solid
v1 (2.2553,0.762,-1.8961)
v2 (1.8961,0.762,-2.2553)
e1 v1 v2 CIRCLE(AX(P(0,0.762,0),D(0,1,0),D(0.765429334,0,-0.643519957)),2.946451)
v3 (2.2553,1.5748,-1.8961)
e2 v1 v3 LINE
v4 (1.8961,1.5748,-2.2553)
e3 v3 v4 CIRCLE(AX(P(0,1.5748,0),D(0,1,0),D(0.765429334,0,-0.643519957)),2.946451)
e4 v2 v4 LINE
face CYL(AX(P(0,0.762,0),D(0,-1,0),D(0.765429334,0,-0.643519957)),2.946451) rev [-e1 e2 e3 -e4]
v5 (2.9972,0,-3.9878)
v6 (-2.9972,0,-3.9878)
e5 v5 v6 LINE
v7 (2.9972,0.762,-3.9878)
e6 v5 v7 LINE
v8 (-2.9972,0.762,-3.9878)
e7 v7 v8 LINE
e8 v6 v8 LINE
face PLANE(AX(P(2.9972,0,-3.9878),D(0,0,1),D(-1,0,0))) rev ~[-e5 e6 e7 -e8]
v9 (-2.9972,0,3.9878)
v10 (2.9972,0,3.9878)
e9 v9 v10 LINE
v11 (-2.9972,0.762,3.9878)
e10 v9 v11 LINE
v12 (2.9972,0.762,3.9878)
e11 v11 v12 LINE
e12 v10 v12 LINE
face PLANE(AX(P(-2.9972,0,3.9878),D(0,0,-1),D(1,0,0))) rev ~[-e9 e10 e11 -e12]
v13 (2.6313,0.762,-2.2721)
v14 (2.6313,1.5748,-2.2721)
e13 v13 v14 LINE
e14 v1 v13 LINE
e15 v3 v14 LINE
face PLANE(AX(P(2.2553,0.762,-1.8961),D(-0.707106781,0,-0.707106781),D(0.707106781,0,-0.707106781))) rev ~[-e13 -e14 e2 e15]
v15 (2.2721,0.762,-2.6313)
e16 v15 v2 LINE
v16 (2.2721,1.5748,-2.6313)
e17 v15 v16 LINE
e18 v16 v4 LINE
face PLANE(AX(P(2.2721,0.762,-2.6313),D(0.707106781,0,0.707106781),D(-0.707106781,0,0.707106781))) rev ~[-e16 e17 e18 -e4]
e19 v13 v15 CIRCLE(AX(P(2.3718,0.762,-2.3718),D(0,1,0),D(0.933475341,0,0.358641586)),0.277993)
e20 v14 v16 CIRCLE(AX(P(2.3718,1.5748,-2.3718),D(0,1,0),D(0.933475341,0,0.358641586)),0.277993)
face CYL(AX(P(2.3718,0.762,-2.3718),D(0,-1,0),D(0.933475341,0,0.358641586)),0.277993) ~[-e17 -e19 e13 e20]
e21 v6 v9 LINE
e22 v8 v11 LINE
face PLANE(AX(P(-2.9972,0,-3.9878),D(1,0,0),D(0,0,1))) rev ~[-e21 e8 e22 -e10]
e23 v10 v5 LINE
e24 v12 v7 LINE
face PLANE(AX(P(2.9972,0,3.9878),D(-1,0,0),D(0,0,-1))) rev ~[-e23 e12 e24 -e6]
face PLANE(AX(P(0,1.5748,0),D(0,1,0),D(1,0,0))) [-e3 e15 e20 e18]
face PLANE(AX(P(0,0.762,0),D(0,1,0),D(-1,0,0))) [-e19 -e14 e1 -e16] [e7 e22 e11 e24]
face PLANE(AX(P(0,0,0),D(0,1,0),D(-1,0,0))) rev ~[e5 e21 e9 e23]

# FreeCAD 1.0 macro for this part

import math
import FreeCAD as App
import Part
import Sketcher
from FreeCAD import Vector
Q = App.Units.Quantity


def add_polygon(sketch, points):
    """Adds a closed chain of lines whose ends are joined by coincident constraints."""
    first, n = sketch.GeometryCount, len(points)
    for a, b in zip(points, points[1:] + points[:1]):
        sketch.addGeometry(Part.LineSegment(App.Vector(*a, 0), App.Vector(*b, 0)), False)
    for i in range(n):
        sketch.addConstraint(Sketcher.Constraint("Coincident", first + i, 2, first + (i + 1) % n, 1))

doc = App.newDocument("Part")
body = doc.addObject("PartDesign::Body", "Body")

# Sketch on XZ plane
sketch1 = body.newObject("Sketcher::SketchObject", "Sketch")
sketch1.AttachmentSupport = (doc.getObject("XZ_Plane"), [""])
sketch1.MapMode = "FlatFace"
add_polygon(sketch1, [(-3, -4), (-3, 4), (3, 4), (3, -4)])  # lines 0-3
sketch1.addConstraint([
    Sketcher.Constraint("Vertical", 0),
    Sketcher.Constraint("Horizontal", 1),
    Sketcher.Constraint("Vertical", 2),
    Sketcher.Constraint("Horizontal", 3),
    Sketcher.Constraint("Symmetric", 0, 2, 2, 2, -1, 1),
    Sketcher.Constraint("DistanceX", 1, 1, 1, 2, Q("0.236 in")),
    Sketcher.Constraint("DistanceY", 0, 1, 0, 2, Q("0.314 in")),
])
pad1 = body.newObject("PartDesign::Pad", "Pad")
pad1.Profile = sketch1
pad1.Length = Q("0.03 in")
pad1.Reversed = True

# Sketch on XZ plane
sketch2 = body.newObject("Sketcher::SketchObject", "Sketch001")
sketch2.AttachmentSupport = (doc.getObject("XZ_Plane"), [""])
sketch2.MapMode = "FlatFace"
sketch2.AttachmentOffset = App.Placement(Vector(0, 0, -0.03 * 25.4), App.Rotation())
sketch2.addGeometry([
    Part.ArcOfCircle(Part.Circle(Vector(0, 0, 0), Vector(0, 0, 1), 2.95), math.radians(-49.95), math.radians(-40.05)),
    Part.LineSegment(Vector(2.26, -1.9, 0), Vector(2.63, -2.27, 0)),
    Part.ArcOfCircle(Part.Circle(Vector(2.37, -2.37, 0), Vector(0, 0, 1), 0.28), math.radians(-111), math.radians(21)),
    Part.LineSegment(Vector(2.27, -2.63, 0), Vector(1.9, -2.26, 0)),
], False)
sketch2.addConstraint([
    Sketcher.Constraint("Coincident", 0, 2, 1, 1),
    Sketcher.Constraint("Coincident", 1, 2, 2, 2),
    Sketcher.Constraint("Coincident", 2, 1, 3, 1),
    Sketcher.Constraint("Coincident", 3, 2, 0, 1),
    Sketcher.Constraint("Coincident", 0, 3, -1, 1),
    Sketcher.Constraint("Parallel", 1, 3),
    Sketcher.Constraint("Equal", 1, 3),
    Sketcher.Constraint("Angle", 1, Q("-45 deg")),
    Sketcher.Constraint("Radius", 0, Q("0.116 in")),
    Sketcher.Constraint("Radius", 2, 0.278),
    Sketcher.Constraint("DistanceX", -1, 1, 0, 2, Q("0.0888 in")),
    Sketcher.Constraint("DistanceX", -1, 1, 1, 2, Q("0.1036 in")),
    Sketcher.Constraint("DistanceY", 2, 1, -1, 1, Q("0.1036 in")),
])
pad2 = body.newObject("PartDesign::Pad", "Pad001")
pad2.Profile = sketch2
pad2.Length = Q("0.032 in")
pad2.Reversed = True

doc.recompute()
